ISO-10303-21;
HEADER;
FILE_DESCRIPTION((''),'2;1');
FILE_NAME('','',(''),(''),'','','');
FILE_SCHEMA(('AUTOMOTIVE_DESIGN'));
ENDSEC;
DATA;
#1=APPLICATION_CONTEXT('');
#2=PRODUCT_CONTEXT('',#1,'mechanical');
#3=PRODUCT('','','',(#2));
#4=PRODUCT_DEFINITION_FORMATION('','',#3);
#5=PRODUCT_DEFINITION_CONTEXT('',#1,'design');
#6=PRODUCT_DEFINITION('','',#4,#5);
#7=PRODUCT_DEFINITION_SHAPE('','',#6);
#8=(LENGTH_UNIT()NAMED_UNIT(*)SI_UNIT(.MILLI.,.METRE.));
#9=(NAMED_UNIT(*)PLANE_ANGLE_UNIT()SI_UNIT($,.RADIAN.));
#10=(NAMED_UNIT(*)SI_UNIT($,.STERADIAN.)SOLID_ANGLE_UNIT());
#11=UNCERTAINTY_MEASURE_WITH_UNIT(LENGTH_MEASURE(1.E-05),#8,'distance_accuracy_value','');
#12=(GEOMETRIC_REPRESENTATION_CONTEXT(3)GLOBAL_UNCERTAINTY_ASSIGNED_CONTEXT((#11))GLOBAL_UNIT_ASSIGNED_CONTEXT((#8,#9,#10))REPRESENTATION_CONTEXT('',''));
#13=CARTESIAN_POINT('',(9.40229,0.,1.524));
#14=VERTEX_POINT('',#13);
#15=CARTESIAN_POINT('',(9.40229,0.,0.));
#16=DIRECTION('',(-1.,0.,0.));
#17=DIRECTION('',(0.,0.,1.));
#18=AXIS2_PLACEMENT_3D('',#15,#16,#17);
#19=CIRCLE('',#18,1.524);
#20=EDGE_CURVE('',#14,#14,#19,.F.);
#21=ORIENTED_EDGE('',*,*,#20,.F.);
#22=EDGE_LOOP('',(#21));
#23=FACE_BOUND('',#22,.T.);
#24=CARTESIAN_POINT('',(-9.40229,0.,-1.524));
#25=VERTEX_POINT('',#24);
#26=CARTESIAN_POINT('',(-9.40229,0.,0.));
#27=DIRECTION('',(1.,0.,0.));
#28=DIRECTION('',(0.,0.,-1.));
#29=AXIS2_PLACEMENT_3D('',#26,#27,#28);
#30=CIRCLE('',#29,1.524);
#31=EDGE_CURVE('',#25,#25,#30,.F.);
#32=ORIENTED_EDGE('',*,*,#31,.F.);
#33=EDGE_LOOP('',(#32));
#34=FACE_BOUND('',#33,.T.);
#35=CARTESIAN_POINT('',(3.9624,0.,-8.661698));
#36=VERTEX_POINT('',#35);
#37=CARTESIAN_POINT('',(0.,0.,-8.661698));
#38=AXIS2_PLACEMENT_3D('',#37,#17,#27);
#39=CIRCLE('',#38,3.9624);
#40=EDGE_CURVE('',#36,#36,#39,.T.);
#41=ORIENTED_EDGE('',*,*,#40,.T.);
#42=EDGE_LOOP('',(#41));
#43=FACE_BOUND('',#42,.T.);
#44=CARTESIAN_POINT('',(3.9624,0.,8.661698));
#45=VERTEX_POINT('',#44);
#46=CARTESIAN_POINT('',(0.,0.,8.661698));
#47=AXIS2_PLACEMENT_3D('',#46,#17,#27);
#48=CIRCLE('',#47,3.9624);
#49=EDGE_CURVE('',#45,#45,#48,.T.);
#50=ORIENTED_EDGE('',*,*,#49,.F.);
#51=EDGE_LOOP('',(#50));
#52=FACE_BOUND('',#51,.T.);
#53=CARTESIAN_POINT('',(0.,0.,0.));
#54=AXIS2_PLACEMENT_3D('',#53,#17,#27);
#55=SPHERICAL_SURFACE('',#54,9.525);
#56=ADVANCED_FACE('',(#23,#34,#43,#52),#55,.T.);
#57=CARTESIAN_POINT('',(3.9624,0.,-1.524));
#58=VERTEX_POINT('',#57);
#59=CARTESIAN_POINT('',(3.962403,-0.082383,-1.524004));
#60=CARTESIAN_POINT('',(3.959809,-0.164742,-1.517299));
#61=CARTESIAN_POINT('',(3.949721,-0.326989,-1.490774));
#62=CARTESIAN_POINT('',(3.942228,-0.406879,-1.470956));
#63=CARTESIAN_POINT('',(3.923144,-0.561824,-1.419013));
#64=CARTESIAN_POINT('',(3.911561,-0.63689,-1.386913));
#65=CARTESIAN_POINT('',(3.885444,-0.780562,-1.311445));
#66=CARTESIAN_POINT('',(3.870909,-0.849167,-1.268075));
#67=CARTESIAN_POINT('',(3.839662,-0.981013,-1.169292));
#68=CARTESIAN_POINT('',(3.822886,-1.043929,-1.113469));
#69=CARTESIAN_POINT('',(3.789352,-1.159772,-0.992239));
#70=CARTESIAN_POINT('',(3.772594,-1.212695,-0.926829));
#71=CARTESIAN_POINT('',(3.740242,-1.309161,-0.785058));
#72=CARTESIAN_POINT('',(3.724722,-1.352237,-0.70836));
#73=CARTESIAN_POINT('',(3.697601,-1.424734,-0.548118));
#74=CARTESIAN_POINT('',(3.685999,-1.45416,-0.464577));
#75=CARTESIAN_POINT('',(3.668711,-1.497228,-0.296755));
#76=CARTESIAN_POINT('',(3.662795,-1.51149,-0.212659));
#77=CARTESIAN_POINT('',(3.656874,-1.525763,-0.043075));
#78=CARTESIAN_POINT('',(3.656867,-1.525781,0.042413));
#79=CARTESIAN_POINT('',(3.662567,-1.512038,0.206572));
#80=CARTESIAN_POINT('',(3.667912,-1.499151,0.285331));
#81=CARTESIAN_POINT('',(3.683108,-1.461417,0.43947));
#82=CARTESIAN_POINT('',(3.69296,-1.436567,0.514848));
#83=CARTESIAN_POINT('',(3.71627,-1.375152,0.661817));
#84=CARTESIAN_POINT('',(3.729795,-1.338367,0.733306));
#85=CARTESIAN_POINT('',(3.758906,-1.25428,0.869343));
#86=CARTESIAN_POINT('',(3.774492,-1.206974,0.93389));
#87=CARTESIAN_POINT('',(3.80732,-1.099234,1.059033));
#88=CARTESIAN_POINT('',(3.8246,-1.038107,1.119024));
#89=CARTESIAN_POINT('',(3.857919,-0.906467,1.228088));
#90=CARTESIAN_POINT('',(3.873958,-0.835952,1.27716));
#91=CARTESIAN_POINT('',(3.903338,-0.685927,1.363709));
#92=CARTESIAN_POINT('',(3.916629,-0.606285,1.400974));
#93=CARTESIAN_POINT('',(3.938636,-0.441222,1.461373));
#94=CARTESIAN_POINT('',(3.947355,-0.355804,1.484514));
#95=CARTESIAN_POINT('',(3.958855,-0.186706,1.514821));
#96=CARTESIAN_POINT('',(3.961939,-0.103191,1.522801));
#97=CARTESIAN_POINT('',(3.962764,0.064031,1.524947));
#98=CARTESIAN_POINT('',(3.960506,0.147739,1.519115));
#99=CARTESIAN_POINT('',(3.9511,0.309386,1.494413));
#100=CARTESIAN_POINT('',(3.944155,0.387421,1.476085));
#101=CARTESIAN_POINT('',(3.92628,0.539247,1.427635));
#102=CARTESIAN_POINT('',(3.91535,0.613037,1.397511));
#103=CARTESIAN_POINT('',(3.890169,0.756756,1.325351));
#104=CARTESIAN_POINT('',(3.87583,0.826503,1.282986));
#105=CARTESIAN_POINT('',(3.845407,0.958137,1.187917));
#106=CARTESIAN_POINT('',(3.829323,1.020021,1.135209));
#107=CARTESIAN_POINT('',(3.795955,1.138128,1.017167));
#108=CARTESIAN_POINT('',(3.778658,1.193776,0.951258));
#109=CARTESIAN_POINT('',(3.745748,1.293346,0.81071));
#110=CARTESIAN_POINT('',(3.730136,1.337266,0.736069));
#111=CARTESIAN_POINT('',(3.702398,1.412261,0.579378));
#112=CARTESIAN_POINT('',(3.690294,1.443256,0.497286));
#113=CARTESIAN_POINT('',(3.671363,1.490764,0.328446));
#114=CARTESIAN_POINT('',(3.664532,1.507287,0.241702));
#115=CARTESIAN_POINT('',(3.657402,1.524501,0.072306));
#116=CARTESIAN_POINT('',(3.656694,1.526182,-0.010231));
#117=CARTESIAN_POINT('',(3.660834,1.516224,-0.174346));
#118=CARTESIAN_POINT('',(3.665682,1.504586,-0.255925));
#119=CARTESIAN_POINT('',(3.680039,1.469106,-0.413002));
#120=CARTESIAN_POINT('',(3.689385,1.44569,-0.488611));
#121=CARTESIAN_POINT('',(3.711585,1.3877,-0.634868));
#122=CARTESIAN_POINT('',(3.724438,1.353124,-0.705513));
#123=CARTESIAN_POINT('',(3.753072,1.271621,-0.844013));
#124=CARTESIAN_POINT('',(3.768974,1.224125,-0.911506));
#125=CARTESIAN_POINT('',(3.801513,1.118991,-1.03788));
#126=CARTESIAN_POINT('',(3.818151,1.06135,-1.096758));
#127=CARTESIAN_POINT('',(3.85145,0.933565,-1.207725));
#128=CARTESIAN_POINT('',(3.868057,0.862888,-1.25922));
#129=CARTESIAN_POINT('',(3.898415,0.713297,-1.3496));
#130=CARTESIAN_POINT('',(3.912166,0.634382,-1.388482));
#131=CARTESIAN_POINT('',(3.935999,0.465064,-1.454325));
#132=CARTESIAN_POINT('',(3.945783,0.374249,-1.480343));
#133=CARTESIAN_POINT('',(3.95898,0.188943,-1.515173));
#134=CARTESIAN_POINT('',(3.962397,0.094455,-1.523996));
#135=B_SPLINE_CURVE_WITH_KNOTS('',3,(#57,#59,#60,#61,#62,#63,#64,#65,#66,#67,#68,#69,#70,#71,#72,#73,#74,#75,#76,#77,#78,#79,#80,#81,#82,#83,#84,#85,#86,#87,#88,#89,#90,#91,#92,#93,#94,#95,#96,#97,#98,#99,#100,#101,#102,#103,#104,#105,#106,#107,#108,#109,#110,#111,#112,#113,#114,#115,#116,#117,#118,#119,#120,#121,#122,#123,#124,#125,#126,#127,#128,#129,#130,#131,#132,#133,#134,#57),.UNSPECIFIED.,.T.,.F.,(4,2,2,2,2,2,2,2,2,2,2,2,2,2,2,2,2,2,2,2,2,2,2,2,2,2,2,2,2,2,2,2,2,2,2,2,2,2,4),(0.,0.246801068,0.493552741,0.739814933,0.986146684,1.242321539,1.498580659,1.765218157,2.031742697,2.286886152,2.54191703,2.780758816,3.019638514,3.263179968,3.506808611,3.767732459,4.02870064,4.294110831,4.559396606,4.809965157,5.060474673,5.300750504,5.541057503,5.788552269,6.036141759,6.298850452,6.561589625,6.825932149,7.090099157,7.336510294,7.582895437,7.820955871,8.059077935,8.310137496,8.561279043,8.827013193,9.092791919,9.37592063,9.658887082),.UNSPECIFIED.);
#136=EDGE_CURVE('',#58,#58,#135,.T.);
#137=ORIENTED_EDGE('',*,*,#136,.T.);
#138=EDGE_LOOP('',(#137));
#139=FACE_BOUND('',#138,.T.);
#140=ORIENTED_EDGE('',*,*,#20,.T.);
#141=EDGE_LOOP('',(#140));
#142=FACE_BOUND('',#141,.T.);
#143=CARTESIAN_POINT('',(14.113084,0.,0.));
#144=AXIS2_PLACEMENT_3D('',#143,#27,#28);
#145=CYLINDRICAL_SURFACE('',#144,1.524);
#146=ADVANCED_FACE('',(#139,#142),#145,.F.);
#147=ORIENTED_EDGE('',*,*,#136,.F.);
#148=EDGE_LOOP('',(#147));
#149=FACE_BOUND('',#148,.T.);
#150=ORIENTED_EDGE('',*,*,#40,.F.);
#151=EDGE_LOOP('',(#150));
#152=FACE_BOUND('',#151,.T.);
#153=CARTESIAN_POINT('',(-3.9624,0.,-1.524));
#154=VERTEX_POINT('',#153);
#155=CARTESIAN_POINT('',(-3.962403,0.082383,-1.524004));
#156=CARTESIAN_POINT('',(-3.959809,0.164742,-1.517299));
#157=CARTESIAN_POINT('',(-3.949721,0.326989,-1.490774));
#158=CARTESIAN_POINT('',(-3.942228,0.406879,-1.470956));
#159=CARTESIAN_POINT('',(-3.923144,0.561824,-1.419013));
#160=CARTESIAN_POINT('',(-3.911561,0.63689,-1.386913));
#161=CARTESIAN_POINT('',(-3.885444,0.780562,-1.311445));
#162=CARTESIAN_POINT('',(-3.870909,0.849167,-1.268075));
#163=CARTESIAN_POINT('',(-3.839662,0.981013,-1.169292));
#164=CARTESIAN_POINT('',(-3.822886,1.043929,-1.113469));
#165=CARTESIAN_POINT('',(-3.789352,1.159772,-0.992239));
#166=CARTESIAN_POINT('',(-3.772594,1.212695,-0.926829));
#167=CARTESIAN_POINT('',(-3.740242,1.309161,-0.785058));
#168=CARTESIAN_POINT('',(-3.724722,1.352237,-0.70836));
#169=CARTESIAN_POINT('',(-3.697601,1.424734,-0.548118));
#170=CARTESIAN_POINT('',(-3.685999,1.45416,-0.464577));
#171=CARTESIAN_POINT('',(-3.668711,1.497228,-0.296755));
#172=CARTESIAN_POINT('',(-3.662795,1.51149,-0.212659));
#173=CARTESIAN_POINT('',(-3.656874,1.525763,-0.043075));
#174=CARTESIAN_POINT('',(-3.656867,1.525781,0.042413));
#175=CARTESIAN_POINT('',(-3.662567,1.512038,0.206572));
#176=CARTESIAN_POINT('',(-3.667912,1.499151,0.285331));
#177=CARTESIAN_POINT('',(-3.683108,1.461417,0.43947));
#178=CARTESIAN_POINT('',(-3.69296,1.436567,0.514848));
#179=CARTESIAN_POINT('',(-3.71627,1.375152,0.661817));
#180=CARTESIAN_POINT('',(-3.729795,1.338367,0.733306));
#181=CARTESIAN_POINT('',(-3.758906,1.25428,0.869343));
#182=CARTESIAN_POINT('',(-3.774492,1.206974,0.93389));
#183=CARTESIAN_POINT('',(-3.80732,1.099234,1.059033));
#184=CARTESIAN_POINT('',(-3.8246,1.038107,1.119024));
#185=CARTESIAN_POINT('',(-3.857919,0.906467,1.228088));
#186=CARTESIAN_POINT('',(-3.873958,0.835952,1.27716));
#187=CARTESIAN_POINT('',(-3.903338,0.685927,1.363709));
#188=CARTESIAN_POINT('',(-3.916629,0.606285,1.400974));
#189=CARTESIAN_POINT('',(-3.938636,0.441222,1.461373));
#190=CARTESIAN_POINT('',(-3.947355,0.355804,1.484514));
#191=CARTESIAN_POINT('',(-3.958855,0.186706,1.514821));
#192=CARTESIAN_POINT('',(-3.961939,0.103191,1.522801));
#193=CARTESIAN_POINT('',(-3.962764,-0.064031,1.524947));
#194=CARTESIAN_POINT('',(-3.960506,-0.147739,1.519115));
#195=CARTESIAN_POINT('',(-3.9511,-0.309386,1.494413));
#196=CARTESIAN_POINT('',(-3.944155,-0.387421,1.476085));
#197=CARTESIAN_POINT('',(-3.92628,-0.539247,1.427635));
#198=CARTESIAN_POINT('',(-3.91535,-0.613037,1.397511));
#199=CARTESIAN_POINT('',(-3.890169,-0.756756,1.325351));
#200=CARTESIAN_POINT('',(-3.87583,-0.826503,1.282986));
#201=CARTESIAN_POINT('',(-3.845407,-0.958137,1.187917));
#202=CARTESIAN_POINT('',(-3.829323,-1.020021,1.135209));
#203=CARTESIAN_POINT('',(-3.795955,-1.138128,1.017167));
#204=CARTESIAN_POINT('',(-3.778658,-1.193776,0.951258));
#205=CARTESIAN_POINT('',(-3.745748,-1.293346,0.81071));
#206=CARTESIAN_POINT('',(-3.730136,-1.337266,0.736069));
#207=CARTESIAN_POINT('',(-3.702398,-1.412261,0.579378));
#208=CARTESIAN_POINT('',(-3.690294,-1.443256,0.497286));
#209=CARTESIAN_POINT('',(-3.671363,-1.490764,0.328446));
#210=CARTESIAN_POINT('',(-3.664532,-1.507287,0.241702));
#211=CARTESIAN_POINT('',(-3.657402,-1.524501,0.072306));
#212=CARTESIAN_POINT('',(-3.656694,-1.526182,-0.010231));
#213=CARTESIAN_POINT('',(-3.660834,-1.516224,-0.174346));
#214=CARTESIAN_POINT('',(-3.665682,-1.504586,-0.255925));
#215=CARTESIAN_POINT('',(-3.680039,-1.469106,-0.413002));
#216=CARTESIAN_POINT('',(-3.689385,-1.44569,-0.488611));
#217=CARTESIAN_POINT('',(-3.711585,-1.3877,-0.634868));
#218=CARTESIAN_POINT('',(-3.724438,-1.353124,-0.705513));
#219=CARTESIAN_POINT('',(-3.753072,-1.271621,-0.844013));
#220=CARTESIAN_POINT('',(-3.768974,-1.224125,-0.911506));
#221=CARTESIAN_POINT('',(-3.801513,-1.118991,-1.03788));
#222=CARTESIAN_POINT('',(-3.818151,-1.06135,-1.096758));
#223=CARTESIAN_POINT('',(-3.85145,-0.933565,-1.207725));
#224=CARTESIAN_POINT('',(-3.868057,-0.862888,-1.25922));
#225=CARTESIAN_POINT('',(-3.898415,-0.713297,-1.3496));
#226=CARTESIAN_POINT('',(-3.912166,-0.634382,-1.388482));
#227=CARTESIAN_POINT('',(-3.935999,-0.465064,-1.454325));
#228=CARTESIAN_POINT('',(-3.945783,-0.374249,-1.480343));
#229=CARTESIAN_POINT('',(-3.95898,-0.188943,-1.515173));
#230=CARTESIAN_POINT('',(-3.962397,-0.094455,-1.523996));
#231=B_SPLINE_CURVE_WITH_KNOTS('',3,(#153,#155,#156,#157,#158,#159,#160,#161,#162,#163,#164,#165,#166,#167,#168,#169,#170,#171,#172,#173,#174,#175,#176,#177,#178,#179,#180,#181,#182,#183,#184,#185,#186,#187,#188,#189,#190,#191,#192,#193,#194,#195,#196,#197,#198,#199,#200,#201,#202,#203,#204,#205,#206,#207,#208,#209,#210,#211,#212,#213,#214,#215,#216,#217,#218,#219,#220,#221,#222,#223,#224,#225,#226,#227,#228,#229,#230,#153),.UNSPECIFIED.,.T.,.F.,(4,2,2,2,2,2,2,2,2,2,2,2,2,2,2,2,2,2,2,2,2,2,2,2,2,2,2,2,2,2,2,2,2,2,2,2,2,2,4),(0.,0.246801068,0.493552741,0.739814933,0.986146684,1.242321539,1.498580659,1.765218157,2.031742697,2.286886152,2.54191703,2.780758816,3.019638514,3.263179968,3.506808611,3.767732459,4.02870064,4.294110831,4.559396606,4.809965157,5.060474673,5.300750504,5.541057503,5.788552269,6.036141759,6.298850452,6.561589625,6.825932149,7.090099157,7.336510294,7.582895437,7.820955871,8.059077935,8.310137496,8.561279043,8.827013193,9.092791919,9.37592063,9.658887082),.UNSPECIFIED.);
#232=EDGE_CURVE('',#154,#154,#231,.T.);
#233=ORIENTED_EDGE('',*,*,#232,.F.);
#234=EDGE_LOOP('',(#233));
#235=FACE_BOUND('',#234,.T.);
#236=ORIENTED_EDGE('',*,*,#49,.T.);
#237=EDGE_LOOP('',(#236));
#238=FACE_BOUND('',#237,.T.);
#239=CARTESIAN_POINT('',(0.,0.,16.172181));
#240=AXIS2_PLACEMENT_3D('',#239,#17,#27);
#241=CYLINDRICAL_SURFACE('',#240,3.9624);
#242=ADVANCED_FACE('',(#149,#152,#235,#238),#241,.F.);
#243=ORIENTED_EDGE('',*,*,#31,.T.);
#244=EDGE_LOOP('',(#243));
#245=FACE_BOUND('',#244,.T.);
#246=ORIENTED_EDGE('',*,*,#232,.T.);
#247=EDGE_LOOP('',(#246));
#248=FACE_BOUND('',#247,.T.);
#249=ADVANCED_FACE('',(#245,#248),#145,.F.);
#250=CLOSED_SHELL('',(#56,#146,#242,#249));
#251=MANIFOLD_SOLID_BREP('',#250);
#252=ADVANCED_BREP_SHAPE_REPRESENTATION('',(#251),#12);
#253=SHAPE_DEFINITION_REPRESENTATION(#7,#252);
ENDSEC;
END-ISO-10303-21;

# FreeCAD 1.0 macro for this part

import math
import FreeCAD as App
import Part
import Sketcher
Q = App.Units.Quantity


def add_polygon(sketch, points):
    """Adds a closed chain of lines whose ends are joined by coincident constraints."""
    first, n = sketch.GeometryCount, len(points)
    for a, b in zip(points, points[1:] + points[:1]):
        sketch.addGeometry(Part.LineSegment(App.Vector(*a, 0), App.Vector(*b, 0)), False)
    for i in range(n):
        sketch.addConstraint(Sketcher.Constraint("Coincident", first + i, 2, first + (i + 1) % n, 1))

doc = App.newDocument("Part")
body = doc.addObject("PartDesign::Body", "Body")

# Sketch on XZ plane
sketch1 = body.newObject("Sketcher::SketchObject", "Sketch")
sketch1.AttachmentSupport = (doc.getObject("XZ_Plane"), [""])
sketch1.MapMode = "FlatFace"
sketch1.addGeometry(Part.LineSegment(App.Vector(3.9624, -8.661698, 0), App.Vector(3.9624, 8.661698, 0)), False)
sketch1.addGeometry(Part.ArcOfCircle(Part.Circle(App.Vector(0, 0, 0), App.Vector(0, 0, 1), 9.525), math.radians(-65.417693), math.radians(65.417693)), False)
sketch1.addConstraint(Sketcher.Constraint("Coincident", 0, 1, 1, 1))
sketch1.addConstraint(Sketcher.Constraint("Coincident", 1, 2, 0, 2))
sketch1.addConstraint(Sketcher.Constraint("Vertical", 0))
sketch1.addConstraint(Sketcher.Constraint("Coincident", 1, 3, -1, 1))
sketch1.addConstraint(Sketcher.Constraint("Radius", 1, Q("0.375 in")))
sketch1.addConstraint(Sketcher.Constraint("DistanceX", -1, 1, 0, 1, Q("0.156 in")))
revolution = body.newObject("PartDesign::Revolution", "Revolution")
revolution.Profile = sketch1
revolution.ReferenceAxis = (sketch1, ["V_Axis"])
revolution.Angle = 360

# Sketch on XZ plane
sketch2 = body.newObject("Sketcher::SketchObject", "Sketch001")
sketch2.AttachmentSupport = (doc.getObject("XZ_Plane"), [""])
sketch2.MapMode = "FlatFace"
add_polygon(sketch2, [(-17.241364, -1.524), (-17.241364, 0), (14.113084, 0), (14.113084, -1.524)])  # lines 0-3
sketch2.addConstraint(Sketcher.Constraint("Vertical", 0))
sketch2.addConstraint(Sketcher.Constraint("Horizontal", 1))
sketch2.addConstraint(Sketcher.Constraint("Vertical", 2))
sketch2.addConstraint(Sketcher.Constraint("Horizontal", 3))
sketch2.addConstraint(Sketcher.Constraint("PointOnObject", 0, 2, -1))
sketch2.addConstraint(Sketcher.Constraint("DistanceY", 0, 1, 0, 2, Q("0.06 in")))
sketch2.addConstraint(Sketcher.Constraint("DistanceX", 1, 1, 1, 2, Q("31.354448 mm")))
sketch2.addConstraint(Sketcher.Constraint("DistanceX", 0, 2, -1, 1, Q("17.241364 mm")))
groove = body.newObject("PartDesign::Groove", "Groove")
groove.Profile = sketch2
groove.ReferenceAxis = (sketch2, ["H_Axis"])
groove.Angle = 360

doc.recompute()
